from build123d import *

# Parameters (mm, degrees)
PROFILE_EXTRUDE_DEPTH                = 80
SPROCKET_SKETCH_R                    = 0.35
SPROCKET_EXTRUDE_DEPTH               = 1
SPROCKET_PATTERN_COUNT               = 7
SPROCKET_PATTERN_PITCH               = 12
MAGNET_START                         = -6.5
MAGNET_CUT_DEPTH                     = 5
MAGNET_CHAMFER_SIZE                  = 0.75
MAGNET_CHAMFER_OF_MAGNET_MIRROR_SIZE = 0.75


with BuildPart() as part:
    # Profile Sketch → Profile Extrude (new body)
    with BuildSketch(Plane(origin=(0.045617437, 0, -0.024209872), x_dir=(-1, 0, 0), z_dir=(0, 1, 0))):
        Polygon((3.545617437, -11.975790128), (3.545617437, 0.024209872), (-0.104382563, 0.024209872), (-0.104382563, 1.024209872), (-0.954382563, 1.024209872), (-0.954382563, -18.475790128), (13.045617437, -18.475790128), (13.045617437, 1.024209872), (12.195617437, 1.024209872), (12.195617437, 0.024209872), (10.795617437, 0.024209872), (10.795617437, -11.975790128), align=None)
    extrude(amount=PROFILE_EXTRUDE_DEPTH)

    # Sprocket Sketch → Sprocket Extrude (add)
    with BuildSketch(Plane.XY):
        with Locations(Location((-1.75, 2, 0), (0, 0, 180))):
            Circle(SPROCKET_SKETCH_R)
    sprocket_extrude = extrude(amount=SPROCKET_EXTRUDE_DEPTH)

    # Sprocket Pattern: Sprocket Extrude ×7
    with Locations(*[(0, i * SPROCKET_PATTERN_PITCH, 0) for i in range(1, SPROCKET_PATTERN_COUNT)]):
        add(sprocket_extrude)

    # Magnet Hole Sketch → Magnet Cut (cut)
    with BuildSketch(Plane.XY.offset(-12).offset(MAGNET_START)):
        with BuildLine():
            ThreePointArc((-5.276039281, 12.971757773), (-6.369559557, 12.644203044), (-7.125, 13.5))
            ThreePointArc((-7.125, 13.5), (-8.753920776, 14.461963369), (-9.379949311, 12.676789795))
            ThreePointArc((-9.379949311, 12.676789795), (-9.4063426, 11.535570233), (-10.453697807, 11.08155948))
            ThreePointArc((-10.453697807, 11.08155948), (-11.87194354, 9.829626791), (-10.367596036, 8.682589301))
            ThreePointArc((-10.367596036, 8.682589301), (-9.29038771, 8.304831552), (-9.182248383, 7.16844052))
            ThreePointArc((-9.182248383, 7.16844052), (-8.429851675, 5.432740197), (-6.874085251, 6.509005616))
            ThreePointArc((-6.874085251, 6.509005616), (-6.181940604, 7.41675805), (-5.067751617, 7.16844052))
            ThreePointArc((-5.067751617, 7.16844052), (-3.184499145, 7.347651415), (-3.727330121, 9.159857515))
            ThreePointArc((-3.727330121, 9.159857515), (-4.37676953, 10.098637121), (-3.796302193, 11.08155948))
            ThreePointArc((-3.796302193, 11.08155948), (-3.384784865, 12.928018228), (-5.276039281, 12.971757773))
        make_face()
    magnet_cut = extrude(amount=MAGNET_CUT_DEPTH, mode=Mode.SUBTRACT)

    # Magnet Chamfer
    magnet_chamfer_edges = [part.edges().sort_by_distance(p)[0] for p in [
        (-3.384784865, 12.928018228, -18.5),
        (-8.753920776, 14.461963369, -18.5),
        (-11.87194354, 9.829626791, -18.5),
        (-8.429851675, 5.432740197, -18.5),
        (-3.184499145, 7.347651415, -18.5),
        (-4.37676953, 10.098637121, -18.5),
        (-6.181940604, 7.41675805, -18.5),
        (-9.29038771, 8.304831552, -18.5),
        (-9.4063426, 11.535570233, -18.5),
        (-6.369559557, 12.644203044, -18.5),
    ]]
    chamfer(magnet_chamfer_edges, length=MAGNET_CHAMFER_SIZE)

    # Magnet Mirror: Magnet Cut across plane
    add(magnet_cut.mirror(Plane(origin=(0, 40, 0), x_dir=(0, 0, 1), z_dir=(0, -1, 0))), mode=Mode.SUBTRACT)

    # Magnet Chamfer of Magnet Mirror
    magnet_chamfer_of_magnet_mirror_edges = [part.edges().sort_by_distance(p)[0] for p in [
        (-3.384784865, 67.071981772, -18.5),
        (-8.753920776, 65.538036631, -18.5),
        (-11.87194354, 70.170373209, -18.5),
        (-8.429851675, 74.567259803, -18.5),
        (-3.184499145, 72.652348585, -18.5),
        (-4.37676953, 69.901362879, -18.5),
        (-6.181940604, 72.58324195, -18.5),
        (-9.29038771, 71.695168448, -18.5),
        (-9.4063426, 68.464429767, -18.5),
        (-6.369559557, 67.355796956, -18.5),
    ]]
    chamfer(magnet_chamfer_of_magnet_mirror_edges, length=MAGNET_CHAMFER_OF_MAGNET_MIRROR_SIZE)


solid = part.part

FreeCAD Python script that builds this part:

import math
import FreeCAD as App
import Part
import Sketcher
Q = App.Units.Quantity


def edges_at(feature, points):
    """Names of the edges that pass closest to the given points."""
    edges = feature.Shape.Edges
    near = lambda p: min(range(len(edges)), key=lambda i: edges[i].distToShape(Part.Vertex(*p))[0])
    return sorted({f"Edge{near(p) + 1}" for p in points})

doc = App.newDocument("Part")
body = doc.addObject("PartDesign::Body", "Body")

# Sketch on XZ plane
sketch1 = body.newObject("Sketcher::SketchObject", "Sketch")
sketch1.AttachmentSupport = (doc.getObject("XZ_Plane"), [""])
sketch1.MapMode = "FlatFace"
sketch1.addGeometry([
    Part.LineSegment(App.Vector(-3.5, -12, 0), App.Vector(-3.5, 0, 0)),  # 0
    Part.LineSegment(App.Vector(-3.5, 0, 0), App.Vector(0.1, 0, 0)),  # 1
    Part.LineSegment(App.Vector(0.1, 0, 0), App.Vector(0.1, 1, 0)),  # 2
    Part.LineSegment(App.Vector(0.1, 1, 0), App.Vector(1, 1, 0)),  # 3
    Part.LineSegment(App.Vector(1, 1, 0), App.Vector(1, -18.5, 0)),  # 4
    Part.LineSegment(App.Vector(1, -18.5, 0), App.Vector(-13, -18.5, 0)),  # 5
    Part.LineSegment(App.Vector(-13, -18.5, 0), App.Vector(-13, 1, 0)),  # 6
    Part.LineSegment(App.Vector(-13, 1, 0), App.Vector(-12.2, 1, 0)),  # 7
    Part.LineSegment(App.Vector(-12.2, 1, 0), App.Vector(-12.2, 0, 0)),  # 8
    Part.LineSegment(App.Vector(-12.2, 0, 0), App.Vector(-10.8, 0, 0)),  # 9
    Part.LineSegment(App.Vector(-10.8, 0, 0), App.Vector(-10.8, -12, 0)),  # 10
    Part.LineSegment(App.Vector(-10.8, -12, 0), App.Vector(-3.5, -12, 0)),  # 11
], False)
sketch1.addConstraint([
    Sketcher.Constraint("Coincident", 0, 2, 1, 1),
    Sketcher.Constraint("Coincident", 1, 2, 2, 1),
    Sketcher.Constraint("Coincident", 2, 2, 3, 1),
    Sketcher.Constraint("Coincident", 3, 2, 4, 1),
    Sketcher.Constraint("Coincident", 4, 2, 5, 1),
    Sketcher.Constraint("Coincident", 5, 2, 6, 1),
    Sketcher.Constraint("Coincident", 6, 2, 7, 1),
    Sketcher.Constraint("Coincident", 7, 2, 8, 1),
    Sketcher.Constraint("Coincident", 8, 2, 9, 1),
    Sketcher.Constraint("Coincident", 9, 2, 10, 1),
    Sketcher.Constraint("Coincident", 10, 2, 11, 1),
    Sketcher.Constraint("Coincident", 11, 2, 0, 1),
    Sketcher.Constraint("Vertical", 0),
    Sketcher.Constraint("Horizontal", 1),
    Sketcher.Constraint("Vertical", 2),
    Sketcher.Constraint("Horizontal", 3),
    Sketcher.Constraint("Vertical", 4),
    Sketcher.Constraint("Horizontal", 5),
    Sketcher.Constraint("Vertical", 6),
    Sketcher.Constraint("Horizontal", 7),
    Sketcher.Constraint("Vertical", 8),
    Sketcher.Constraint("Horizontal", 9),
    Sketcher.Constraint("Vertical", 10),
    Sketcher.Constraint("Horizontal", 11),
    Sketcher.Constraint("PointOnObject", 0, 2, -1),
    Sketcher.Constraint("PointOnObject", 8, 2, -1),
    Sketcher.Constraint("Horizontal", 3, 2, 6, 2),
    Sketcher.Constraint("Equal", 3, 7),
    Sketcher.Constraint("DistanceX", 5, 2, 5, 1, Q("14 mm")),
    Sketcher.Constraint("DistanceY", 0, 1, 0, 2, Q("12 mm")),
    Sketcher.Constraint("DistanceY", 2, 1, 2, 2, Q("1 mm")),
    Sketcher.Constraint("DistanceX", 9, 1, 9, 2, Q("1.4 mm")),
    Sketcher.Constraint("DistanceY", 4, 2, 4, 1, Q("19.5 mm")),
    Sketcher.Constraint("DistanceX", -1, 1, 3, 2, Q("1 mm")),
    Sketcher.Constraint("DistanceX", 1, 1, 1, 2, Q("3.65 mm")),
    Sketcher.Constraint("DistanceX", 3, 1, 3, 2, Q("0.85 mm")),
])
pad1 = body.newObject("PartDesign::Pad", "Pad")
pad1.Profile = sketch1
pad1.Length = 80
pad1.Reversed = True

# Sketch on XY plane
sketch2 = body.newObject("Sketcher::SketchObject", "Sketch001")
sketch2.AttachmentSupport = (doc.getObject("XY_Plane"), [""])
sketch2.MapMode = "FlatFace"
sketch2.addGeometry(Part.Circle(App.Vector(-1.75, 2, 0), App.Vector(0, 0, 1), 0.35), False)
sketch2.addConstraint([
    Sketcher.Constraint("Diameter", 0, Q("0.7 mm")),
    Sketcher.Constraint("DistanceY", -1, 1, 0, 3, Q("2 mm")),
    Sketcher.Constraint("DistanceX", 0, 3, -1, 1, Q("1.75 mm")),
])
pad2 = body.newObject("PartDesign::Pad", "Pad001")
pad2.Profile = sketch2
pad2.Length = 1
doc.recompute()

linearpattern = body.newObject("PartDesign::LinearPattern", "LinearPattern")
linearpattern.Originals = [pad2]
linearpattern.Direction = (doc.getObject("Y_Axis"), [""])
linearpattern.Mode = "offset"
linearpattern.Offset = 12
linearpattern.Occurrences = 7
body.Tip = linearpattern

# Sketch on XY plane
sketch3 = body.newObject("Sketcher::SketchObject", "Sketch002")
sketch3.AttachmentSupport = (doc.getObject("XY_Plane"), [""])
sketch3.MapMode = "FlatFace"
sketch3.AttachmentOffset = App.Placement(App.Vector(0, 0, -18.5), App.Rotation())
sketch3.addGeometry([
    Part.ArcOfCircle(Part.Circle(App.Vector(-6.078698, 13.662281, 0), App.Vector(0, 0, 1), 1.058812), math.radians(-171.183697), math.radians(-40.705246)),  # 0
    Part.ArcOfCircle(Part.Circle(App.Vector(-8.334268, 13.312443, 0), App.Vector(0, 0, 1), 1.223726), math.radians(8.816303), math.radians(211.294754)),  # 1
    Part.ArcOfCircle(Part.Circle(App.Vector(-10.284711, 12.126799, 0), App.Vector(0, 0, 1), 1.058812), math.radians(-99.183697), math.radians(31.294754)),  # 2
    Part.ArcOfCircle(Part.Circle(App.Vector(-10.649005, 9.873519, 0), App.Vector(0, 0, 1), 1.223726), math.radians(80.816303), math.radians(283.294754)),  # 3
    Part.ArcOfCircle(Part.Circle(App.Vector(-10.124111, 7.652153, 0), App.Vector(0, 0, 1), 1.058812), math.radians(-27.183697), math.radians(103.294754)),  # 4
    Part.ArcOfCircle(Part.Circle(App.Vector(-8.093687, 6.609388, 0), App.Vector(0, 0, 1), 1.223726), math.radians(152.816303), math.radians(355.294754)),  # 5
    Part.ArcOfCircle(Part.Circle(App.Vector(-5.818841, 6.422152, 0), App.Vector(0, 0, 1), 1.058812), math.radians(44.816303), math.radians(175.294754)),  # 6
    Part.ArcOfCircle(Part.Circle(App.Vector(-4.199677, 8.030967, 0), App.Vector(0, 0, 1), 1.223726), math.radians(-135.183698), math.radians(67.294754)),  # 7
    Part.ArcOfCircle(Part.Circle(App.Vector(-3.318639, 10.136615, 0), App.Vector(0, 0, 1), 1.058812), math.radians(116.816303), math.radians(247.294754)),  # 8
    Part.ArcOfCircle(Part.Circle(App.Vector(-4.348364, 12.173683, 0), App.Vector(0, 0, 1), 1.223726), math.radians(-63.183697), math.radians(139.294754)),  # 9
], False)
sketch3.addConstraint([
    Sketcher.Constraint("Coincident", 0, 1, 1, 1),
    Sketcher.Constraint("Coincident", 1, 2, 2, 2),
    Sketcher.Constraint("Coincident", 2, 1, 3, 1),
    Sketcher.Constraint("Coincident", 3, 2, 4, 2),
    Sketcher.Constraint("Coincident", 4, 1, 5, 1),
    Sketcher.Constraint("Coincident", 5, 2, 6, 2),
    Sketcher.Constraint("Coincident", 6, 1, 7, 1),
    Sketcher.Constraint("Coincident", 7, 2, 8, 2),
    Sketcher.Constraint("Coincident", 8, 1, 9, 1),
    Sketcher.Constraint("Coincident", 9, 2, 0, 2),
    Sketcher.Constraint("DistanceY", -1, 1, 0, 1, Q("13.5 mm")),
    Sketcher.Constraint("DistanceY", 6, 3, 4, 3, Q("1.230002 mm")),
    Sketcher.Constraint("DistanceX", 0, 1, -1, 1, Q("7.125 mm")),
    Sketcher.Constraint("Radius", 0, Q("1.058812 mm")),
    Sketcher.Constraint("Radius", 1, Q("1.223726 mm")),
    Sketcher.Constraint("Radius", 2, Q("1.058812 mm")),
    Sketcher.Constraint("Radius", 3, Q("1.223726 mm")),
    Sketcher.Constraint("Radius", 4, Q("1.058812 mm")),
    Sketcher.Constraint("Radius", 5, Q("1.223726 mm")),
    Sketcher.Constraint("Radius", 6, Q("1.058812 mm")),
    Sketcher.Constraint("Radius", 7, Q("1.223726 mm")),
    Sketcher.Constraint("Radius", 8, Q("1.058812 mm")),
    Sketcher.Constraint("Radius", 9, Q("1.223726 mm")),
    Sketcher.Constraint("DistanceY", -1, 1, 2, 3, Q("12.126799 mm")),
    Sketcher.Constraint("DistanceX", 2, 3, 4, 3, Q("0.1606 mm")),
    Sketcher.Constraint("DistanceX", 2, 1, 3, 2, Q("0.086102 mm")),
    Sketcher.Constraint("DistanceY", 5, 3, 3, 2, Q("2.073202 mm")),
    Sketcher.Constraint("DistanceX", 5, 3, 5, 2, Q("1.219602 mm")),
    Sketcher.Constraint("DistanceY", 7, 2, 8, 1, Q("1.921702 mm")),
    Sketcher.Constraint("DistanceY", 8, 1, 9, 2, Q("1.890198 mm")),
    Sketcher.Constraint("DistanceY", -1, 1, 0, 3, Q("13.662281 mm")),
    Sketcher.Constraint("DistanceX", 2, 3, -1, 1, Q("10.284711 mm")),
    Sketcher.Constraint("DistanceY", -1, 1, 3, 3, Q("9.873519 mm")),
    Sketcher.Constraint("DistanceX", 6, 3, -1, 1, Q("5.818841 mm")),
    Sketcher.Constraint("DistanceX", 8, 3, -1, 1, Q("3.318639 mm")),
    Sketcher.Constraint("DistanceX", 1, 2, -1, 1, Q("9.379949 mm")),
    Sketcher.Constraint("DistanceX", 4, 1, -1, 1, Q("9.182248 mm")),
    Sketcher.Constraint("DistanceX", 6, 1, -1, 1, Q("5.067752 mm")),
    Sketcher.Constraint("DistanceX", 7, 2, -1, 1, Q("3.72733 mm")),
    Sketcher.Constraint("DistanceY", -1, 1, 8, 1, Q("11.081559 mm")),
])
pocket1 = body.newObject("PartDesign::Pocket", "Pocket")
pocket1.Profile = sketch3
pocket1.Length = 5
pocket1.Reversed = True
doc.recompute()

chamfer = body.newObject("PartDesign::Chamfer", "Chamfer")
chamfer.Base = (pocket1, edges_at(pocket1, [
    (-3.385, 12.928, -18.5),
    (-8.754, 14.462, -18.5),
    (-11.872, 9.83, -18.5),
    (-8.43, 5.433, -18.5),
    (-3.184, 7.348, -18.5),
    (-4.377, 10.099, -18.5),
    (-6.182, 7.417, -18.5),
    (-9.29, 8.305, -18.5),
    (-9.406, 11.536, -18.5),
    (-6.37, 12.644, -18.5),
]))
chamfer.Size = 0.75
doc.recompute()

datumplane = body.newObject("PartDesign::Plane", "DatumPlane")
datumplane.AttachmentSupport = (doc.getObject("XZ_Plane"), [""])
datumplane.MapMode = "FlatFace"
datumplane.AttachmentOffset = App.Placement(App.Vector(0, 0, -40), App.Rotation())
mirrored = body.newObject("PartDesign::Mirrored", "Mirrored")
mirrored.Originals = [pocket1]
mirrored.MirrorPlane = (datumplane, [""])
body.Tip = mirrored
doc.recompute()

chamfer2 = body.newObject("PartDesign::Chamfer", "Chamfer001")
chamfer2.Base = (mirrored, edges_at(mirrored, [
    (-3.385, 67.072, -18.5),
    (-8.754, 65.538, -18.5),
    (-11.872, 70.17, -18.5),
    (-8.43, 74.567, -18.5),
    (-3.184, 72.652, -18.5),
    (-4.377, 69.901, -18.5),
    (-6.182, 72.583, -18.5),
    (-9.29, 71.695, -18.5),
    (-9.406, 68.464, -18.5),
    (-6.37, 67.356, -18.5),
]))
chamfer2.Size = 0.75

doc.recompute()
